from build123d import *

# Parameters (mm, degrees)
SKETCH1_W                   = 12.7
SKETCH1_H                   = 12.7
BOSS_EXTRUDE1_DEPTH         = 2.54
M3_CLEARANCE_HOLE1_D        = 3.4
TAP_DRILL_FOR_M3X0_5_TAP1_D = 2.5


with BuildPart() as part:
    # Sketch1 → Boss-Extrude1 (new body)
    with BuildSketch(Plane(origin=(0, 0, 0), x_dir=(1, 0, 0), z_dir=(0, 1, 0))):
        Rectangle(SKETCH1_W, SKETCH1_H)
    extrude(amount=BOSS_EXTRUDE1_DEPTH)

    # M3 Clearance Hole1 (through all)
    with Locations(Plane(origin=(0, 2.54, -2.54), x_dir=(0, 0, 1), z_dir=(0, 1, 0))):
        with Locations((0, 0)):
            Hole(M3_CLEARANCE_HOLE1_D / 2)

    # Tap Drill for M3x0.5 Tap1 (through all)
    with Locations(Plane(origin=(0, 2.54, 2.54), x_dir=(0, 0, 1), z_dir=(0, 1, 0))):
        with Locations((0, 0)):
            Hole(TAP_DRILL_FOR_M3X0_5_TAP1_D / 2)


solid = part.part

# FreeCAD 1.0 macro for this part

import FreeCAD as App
import Part
import Sketcher
from FreeCAD import Vector
Q = App.Units.Quantity


def add_polygon(sketch, points):
    """Adds a closed chain of lines whose ends are joined by coincident constraints."""
    first, n = sketch.GeometryCount, len(points)
    for a, b in zip(points, points[1:] + points[:1]):
        sketch.addGeometry(Part.LineSegment(App.Vector(*a, 0), App.Vector(*b, 0)), False)
    for i in range(n):
        sketch.addConstraint(Sketcher.Constraint("Coincident", first + i, 2, first + (i + 1) % n, 1))

doc = App.newDocument("Part")
body = doc.addObject("PartDesign::Body", "Body")

# Sketch on XZ plane
sketch1 = doc.addObject("Sketcher::SketchObject", "Sketch")
body.addObject(sketch1)
sketch1.AttachmentSupport = (doc.XZ_Plane, [""])
sketch1.MapMode = "FlatFace"
add_polygon(sketch1, [(-6, -6), (-6, 6), (6, 6), (6, -6)])  # lines 0-3
sketch1.addConstraint(Sketcher.Constraint("Vertical", 0))
sketch1.addConstraint(Sketcher.Constraint("Horizontal", 1))
sketch1.addConstraint(Sketcher.Constraint("Vertical", 2))
sketch1.addConstraint(Sketcher.Constraint("Horizontal", 3))
sketch1.addConstraint(Sketcher.Constraint("Symmetric", 0, 2, 2, 2, -1, 1))
sketch1.addConstraint(Sketcher.Constraint("Equal", 3, 0))
sketch1.addConstraint(Sketcher.Constraint("DistanceX", 1, 1, 1, 2, Q("12.7 mm")))
pad1 = doc.addObject("PartDesign::Pad", "Pad")
body.addObject(pad1)
pad1.Profile = sketch1
pad1.Length = 2.54
pad1.Reversed = True

# Sketch on XZ plane
sketch2 = doc.addObject("Sketcher::SketchObject", "Sketch001")
body.addObject(sketch2)
sketch2.AttachmentSupport = (doc.XZ_Plane, [""])
sketch2.MapMode = "FlatFace"
sketch2.AttachmentOffset = App.Placement(Vector(0, 0, -2.54), App.Rotation())
sketch2.addGeometry(Part.Circle(Vector(0, -2.5, 0), Vector(0, 0, 1), 1.7), False)
sketch2.addConstraint(Sketcher.Constraint("PointOnObject", 0, 3, -2))
sketch2.addConstraint(Sketcher.Constraint("Diameter", 0, Q("3.4 mm")))
sketch2.addConstraint(Sketcher.Constraint("DistanceY", 0, 3, -1, 1, Q("2.54 mm")))
doc.recompute()
hole = doc.addObject("PartDesign::Hole", "Hole")
body.addObject(hole)
hole.Profile = sketch2
hole.ThreadType = "None"
hole.Diameter = 3.4
hole.DepthType = "ThroughAll"
hole.Reversed = True

# Sketch on XZ plane
sketch3 = doc.addObject("Sketcher::SketchObject", "Sketch002")
body.addObject(sketch3)
sketch3.AttachmentSupport = (doc.XZ_Plane, [""])
sketch3.MapMode = "FlatFace"
sketch3.AttachmentOffset = App.Placement(Vector(0, 0, -2.54), App.Rotation())
sketch3.addGeometry(Part.Circle(Vector(0, 2.5, 0), Vector(0, 0, 1), 1.2), False)
sketch3.addConstraint(Sketcher.Constraint("PointOnObject", 0, 3, -2))
sketch3.addConstraint(Sketcher.Constraint("Diameter", 0, Q("2.5 mm")))
sketch3.addConstraint(Sketcher.Constraint("DistanceY", -1, 1, 0, 3, Q("2.54 mm")))
doc.recompute()
hole2 = doc.addObject("PartDesign::Hole", "Hole001")
body.addObject(hole2)
hole2.Profile = sketch3
hole2.ThreadType = "None"
hole2.Diameter = 2.5
hole2.DepthType = "ThroughAll"
hole2.Reversed = True

doc.recompute()
